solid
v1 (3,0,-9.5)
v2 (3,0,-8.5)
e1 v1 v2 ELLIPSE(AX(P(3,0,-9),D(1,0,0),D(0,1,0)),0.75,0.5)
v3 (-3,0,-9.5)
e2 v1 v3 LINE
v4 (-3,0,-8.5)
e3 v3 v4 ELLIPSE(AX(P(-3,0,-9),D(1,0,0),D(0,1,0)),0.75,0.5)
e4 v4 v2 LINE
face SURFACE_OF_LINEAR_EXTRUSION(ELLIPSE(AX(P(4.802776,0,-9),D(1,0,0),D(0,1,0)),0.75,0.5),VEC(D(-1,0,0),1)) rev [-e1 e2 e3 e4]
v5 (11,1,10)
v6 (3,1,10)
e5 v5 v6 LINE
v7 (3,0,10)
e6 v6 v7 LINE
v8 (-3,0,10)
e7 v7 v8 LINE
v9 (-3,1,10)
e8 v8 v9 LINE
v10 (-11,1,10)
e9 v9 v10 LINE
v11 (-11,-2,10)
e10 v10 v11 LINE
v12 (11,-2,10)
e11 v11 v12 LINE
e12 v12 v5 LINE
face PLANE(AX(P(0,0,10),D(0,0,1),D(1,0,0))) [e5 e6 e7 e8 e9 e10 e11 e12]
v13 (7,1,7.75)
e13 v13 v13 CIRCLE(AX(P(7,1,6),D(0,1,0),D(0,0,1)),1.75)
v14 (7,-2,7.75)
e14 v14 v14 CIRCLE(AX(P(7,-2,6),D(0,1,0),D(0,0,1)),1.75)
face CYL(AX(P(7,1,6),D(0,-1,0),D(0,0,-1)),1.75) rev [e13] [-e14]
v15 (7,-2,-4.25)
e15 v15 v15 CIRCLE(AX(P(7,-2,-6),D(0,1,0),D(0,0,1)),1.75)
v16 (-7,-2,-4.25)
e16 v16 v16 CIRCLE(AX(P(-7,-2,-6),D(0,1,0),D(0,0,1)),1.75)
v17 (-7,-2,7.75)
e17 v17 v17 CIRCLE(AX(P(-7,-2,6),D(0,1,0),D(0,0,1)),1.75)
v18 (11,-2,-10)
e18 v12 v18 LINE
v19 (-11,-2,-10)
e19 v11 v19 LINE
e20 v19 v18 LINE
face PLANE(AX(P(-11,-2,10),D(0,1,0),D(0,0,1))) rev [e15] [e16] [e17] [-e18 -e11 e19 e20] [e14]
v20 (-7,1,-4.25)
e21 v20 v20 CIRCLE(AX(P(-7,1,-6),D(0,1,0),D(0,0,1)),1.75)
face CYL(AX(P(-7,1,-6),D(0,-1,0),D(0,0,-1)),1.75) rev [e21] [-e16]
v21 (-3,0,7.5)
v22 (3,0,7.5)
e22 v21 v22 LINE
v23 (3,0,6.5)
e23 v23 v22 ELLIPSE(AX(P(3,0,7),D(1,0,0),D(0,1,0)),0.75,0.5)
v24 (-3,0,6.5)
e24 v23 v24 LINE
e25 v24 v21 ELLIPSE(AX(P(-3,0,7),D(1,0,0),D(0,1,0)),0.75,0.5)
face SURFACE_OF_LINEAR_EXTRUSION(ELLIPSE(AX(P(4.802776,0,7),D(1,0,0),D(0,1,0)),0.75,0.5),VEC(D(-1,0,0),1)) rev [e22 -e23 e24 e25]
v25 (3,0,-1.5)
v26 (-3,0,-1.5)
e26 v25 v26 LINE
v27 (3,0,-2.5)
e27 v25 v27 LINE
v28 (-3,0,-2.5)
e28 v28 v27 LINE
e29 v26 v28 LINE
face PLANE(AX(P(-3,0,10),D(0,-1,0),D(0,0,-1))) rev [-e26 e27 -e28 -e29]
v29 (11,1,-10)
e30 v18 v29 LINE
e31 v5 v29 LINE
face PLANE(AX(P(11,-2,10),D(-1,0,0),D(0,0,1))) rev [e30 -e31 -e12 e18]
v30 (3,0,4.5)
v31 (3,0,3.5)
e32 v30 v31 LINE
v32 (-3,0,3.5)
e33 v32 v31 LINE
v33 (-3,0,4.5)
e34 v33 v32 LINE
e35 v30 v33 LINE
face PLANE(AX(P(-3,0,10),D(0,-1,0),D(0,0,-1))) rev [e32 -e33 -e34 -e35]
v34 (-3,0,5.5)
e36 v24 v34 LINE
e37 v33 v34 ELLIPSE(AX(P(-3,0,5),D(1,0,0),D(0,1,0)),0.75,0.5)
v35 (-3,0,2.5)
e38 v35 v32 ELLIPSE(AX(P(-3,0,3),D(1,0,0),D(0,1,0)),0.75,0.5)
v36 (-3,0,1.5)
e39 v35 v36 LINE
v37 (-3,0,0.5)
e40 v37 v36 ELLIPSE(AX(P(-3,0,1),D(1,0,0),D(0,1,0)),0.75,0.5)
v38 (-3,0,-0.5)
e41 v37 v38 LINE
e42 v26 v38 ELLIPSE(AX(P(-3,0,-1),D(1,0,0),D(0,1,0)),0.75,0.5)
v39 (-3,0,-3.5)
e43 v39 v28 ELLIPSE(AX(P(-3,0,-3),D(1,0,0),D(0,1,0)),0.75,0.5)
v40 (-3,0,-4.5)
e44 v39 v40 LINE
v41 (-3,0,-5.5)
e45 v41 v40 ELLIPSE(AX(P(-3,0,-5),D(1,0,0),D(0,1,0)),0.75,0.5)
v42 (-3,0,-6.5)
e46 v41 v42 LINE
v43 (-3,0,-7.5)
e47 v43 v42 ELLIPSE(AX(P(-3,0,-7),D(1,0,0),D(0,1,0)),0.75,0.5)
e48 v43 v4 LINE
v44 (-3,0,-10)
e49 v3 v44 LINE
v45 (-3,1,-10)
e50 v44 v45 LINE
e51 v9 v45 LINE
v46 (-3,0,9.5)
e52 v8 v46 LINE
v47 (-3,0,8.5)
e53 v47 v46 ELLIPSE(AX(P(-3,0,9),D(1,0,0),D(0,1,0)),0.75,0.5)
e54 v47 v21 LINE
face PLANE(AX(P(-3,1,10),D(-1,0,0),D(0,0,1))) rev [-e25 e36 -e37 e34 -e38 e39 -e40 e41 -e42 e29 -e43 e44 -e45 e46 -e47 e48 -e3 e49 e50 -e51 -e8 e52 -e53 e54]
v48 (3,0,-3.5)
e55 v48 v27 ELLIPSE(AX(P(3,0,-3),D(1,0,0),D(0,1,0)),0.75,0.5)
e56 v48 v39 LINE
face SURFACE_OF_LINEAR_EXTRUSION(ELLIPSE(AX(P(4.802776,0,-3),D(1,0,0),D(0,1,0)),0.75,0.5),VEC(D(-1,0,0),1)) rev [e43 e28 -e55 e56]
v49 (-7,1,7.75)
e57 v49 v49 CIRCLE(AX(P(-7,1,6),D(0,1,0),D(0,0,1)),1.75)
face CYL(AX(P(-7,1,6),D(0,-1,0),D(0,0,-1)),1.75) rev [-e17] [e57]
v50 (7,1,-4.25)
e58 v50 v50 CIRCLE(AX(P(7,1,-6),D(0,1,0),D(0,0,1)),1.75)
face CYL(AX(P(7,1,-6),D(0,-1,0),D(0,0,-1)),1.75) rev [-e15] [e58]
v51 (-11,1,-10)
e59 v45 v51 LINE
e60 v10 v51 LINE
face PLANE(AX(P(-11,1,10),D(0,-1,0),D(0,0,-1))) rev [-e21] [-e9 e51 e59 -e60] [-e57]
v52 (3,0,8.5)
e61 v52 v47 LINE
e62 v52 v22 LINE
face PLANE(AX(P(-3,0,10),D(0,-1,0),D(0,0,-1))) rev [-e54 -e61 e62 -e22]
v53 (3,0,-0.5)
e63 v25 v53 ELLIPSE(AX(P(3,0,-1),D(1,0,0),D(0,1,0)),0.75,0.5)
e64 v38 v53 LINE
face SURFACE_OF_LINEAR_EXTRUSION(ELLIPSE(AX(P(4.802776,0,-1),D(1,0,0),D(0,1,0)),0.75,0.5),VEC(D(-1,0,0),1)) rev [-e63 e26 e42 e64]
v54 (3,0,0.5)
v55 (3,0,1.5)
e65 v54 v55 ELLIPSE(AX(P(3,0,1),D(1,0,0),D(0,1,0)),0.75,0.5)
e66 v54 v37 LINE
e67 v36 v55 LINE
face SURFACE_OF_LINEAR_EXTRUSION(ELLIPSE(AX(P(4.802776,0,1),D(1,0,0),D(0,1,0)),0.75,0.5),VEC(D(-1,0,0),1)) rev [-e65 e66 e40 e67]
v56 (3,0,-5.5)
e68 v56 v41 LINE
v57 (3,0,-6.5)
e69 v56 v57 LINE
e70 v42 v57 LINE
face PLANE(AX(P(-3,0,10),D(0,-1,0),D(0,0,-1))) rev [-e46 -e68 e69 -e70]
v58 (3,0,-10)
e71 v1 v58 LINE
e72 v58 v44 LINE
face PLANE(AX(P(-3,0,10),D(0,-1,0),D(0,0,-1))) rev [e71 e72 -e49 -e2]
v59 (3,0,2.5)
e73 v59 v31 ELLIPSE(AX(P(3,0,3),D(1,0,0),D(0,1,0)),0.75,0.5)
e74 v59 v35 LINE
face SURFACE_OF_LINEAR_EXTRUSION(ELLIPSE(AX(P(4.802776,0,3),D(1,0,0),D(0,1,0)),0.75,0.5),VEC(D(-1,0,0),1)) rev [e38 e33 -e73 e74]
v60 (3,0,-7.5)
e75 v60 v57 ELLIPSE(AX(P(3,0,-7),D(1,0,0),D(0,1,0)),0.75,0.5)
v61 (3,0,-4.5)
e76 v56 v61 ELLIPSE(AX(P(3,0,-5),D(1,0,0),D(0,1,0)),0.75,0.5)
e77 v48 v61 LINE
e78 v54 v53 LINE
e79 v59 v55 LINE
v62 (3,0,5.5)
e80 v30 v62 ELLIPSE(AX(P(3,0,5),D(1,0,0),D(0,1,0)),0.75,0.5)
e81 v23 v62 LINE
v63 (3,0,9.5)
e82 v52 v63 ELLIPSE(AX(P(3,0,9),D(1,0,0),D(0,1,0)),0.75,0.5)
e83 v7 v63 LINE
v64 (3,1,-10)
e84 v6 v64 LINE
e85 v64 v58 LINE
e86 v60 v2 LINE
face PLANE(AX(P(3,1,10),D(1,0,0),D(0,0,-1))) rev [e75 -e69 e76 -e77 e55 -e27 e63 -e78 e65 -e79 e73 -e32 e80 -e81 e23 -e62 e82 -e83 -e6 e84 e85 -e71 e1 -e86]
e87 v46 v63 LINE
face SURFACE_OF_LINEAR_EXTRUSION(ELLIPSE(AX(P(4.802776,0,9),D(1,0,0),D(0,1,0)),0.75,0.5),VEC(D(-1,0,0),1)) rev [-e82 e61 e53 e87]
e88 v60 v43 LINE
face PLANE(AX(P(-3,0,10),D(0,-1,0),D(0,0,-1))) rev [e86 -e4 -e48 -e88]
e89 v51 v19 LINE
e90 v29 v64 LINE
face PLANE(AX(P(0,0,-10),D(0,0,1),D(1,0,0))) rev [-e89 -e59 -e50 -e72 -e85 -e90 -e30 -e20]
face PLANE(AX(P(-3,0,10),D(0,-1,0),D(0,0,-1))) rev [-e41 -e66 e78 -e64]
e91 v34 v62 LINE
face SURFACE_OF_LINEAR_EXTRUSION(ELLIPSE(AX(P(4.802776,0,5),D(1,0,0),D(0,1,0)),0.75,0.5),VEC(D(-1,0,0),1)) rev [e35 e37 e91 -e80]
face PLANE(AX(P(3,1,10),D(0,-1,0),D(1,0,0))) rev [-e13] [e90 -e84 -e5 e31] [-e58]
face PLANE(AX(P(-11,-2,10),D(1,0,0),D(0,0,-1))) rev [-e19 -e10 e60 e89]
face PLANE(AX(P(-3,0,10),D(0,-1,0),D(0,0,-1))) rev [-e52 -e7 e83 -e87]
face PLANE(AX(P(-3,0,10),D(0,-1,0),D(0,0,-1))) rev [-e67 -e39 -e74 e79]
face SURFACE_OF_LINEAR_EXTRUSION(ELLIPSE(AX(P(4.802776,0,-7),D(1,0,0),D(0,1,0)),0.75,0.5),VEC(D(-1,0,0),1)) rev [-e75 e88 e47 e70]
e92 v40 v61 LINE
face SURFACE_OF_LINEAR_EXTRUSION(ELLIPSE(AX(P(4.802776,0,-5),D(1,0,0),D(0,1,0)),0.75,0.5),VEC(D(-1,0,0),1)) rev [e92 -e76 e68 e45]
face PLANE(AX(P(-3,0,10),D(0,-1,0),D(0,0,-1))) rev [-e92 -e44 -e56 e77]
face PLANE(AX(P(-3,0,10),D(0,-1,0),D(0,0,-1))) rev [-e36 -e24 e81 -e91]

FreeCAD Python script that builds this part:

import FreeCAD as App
import Part
import Sketcher

V = App.Vector
Q = App.Units.Quantity

doc = App.newDocument("Part")
params = doc.addObject("Spreadsheet::Sheet", "Params")
for row, (alias, value) in enumerate([
    ("sketch1_width", "8 mm"),
    ("sketch1_width2", "22 mm"),
    ("sketch1_height", "3 mm"),
    ("sketch1_height2", "1 mm"),
    ("pad1_length", "20 mm"),
    ("pad2_length", "14 mm"),
    ("linearpattern_pitch", "2 mm"),
    ("linearpattern2_pitch", "2 mm"),
    ("sketch3_diameter", "3.5 mm"),
], start=1):
    params.set(f"A{row}", alias)
    params.set(f"B{row}", "=" + value)
    params.setAlias(f"B{row}", alias)

body = doc.addObject("PartDesign::Body", "Body")

# Sketch on XY plane
sketch1 = doc.addObject("Sketcher::SketchObject", "Sketch")
body.addObject(sketch1)
sketch1.AttachmentSupport = (doc.XY_Plane, [""])
sketch1.MapMode = "FlatFace"
sketch1.addGeometry([
    Part.LineSegment(V(-3, 1, 0), V(-11, 1, 0)),  # 0
    Part.LineSegment(V(-11, 1, 0), V(-11, -2, 0)),  # 1
    Part.LineSegment(V(-11, -2, 0), V(11, -2, 0)),  # 2
    Part.LineSegment(V(11, -2, 0), V(11, 1, 0)),  # 3
    Part.LineSegment(V(11, 1, 0), V(3, 1, 0)),  # 4
    Part.LineSegment(V(3, 1, 0), V(3, 0, 0)),  # 5
    Part.LineSegment(V(3, 0, 0), V(-3, 0, 0)),  # 6
    Part.LineSegment(V(-3, 0, 0), V(-3, 1, 0)),  # 7
], False)
sketch1.addConstraint([
    Sketcher.Constraint("Coincident", 0, 2, 1, 1),
    Sketcher.Constraint("Coincident", 1, 2, 2, 1),
    Sketcher.Constraint("Coincident", 2, 2, 3, 1),
    Sketcher.Constraint("Coincident", 3, 2, 4, 1),
    Sketcher.Constraint("Coincident", 4, 2, 5, 1),
    Sketcher.Constraint("Coincident", 5, 2, 6, 1),
    Sketcher.Constraint("Coincident", 6, 2, 7, 1),
    Sketcher.Constraint("Coincident", 7, 2, 0, 1),
    Sketcher.Constraint("Horizontal", 0),
    Sketcher.Constraint("Vertical", 1),
    Sketcher.Constraint("Horizontal", 2),
    Sketcher.Constraint("Vertical", 3),
    Sketcher.Constraint("Horizontal", 4),
    Sketcher.Constraint("Vertical", 5),
    Sketcher.Constraint("Horizontal", 6),
    Sketcher.Constraint("Vertical", 7),
    Sketcher.Constraint("Symmetric", 5, 2, 6, 2, -1, 1),
    Sketcher.Constraint("Symmetric", 0, 2, 3, 2, -2),
    Sketcher.Constraint("DistanceX", 0, 2, 0, 1, Q("8 mm")),
    Sketcher.Constraint("DistanceX", 2, 1, 2, 2, Q("22 mm")),
    Sketcher.Constraint("DistanceY", 1, 2, 1, 1, Q("3 mm")),
    Sketcher.Constraint("DistanceY", 5, 2, 5, 1, Q("1 mm")),
])
sketch1.setExpression("Constraints[18]", "Params.sketch1_width")
sketch1.setExpression("Constraints[19]", "Params.sketch1_width2")
sketch1.setExpression("Constraints[20]", "Params.sketch1_height")
sketch1.setExpression("Constraints[21]", "Params.sketch1_height2")
pad1 = doc.addObject("PartDesign::Pad", "Pad")
body.addObject(pad1)
pad1.Profile = sketch1
pad1.setExpression("Length", "Params.pad1_length")
pad1.Midplane = True

# Sketch on YZ plane
sketch2 = doc.addObject("Sketcher::SketchObject", "Sketch001")
body.addObject(sketch2)
sketch2.AttachmentSupport = (doc.YZ_Plane, [""])
sketch2.MapMode = "FlatFace"
sketch2.AttachmentOffset = App.Placement(V(0, 0, -11), App.Rotation())
sketch2.addGeometry(Part.Ellipse(V(0.75, 1, 0), V(0, 1.5, 0), V(0, 1, 0)), False)
sketch2.addConstraint(Sketcher.Constraint("Block", 0))
pad2 = doc.addObject("PartDesign::Pad", "Pad001")
body.addObject(pad2)
pad2.Profile = sketch2
pad2.setExpression("Length", "Params.pad2_length")
doc.recompute()

linearpattern = doc.addObject("PartDesign::LinearPattern", "LinearPattern")
body.addObject(linearpattern)
linearpattern.Originals = [pad2]
linearpattern.Direction = (doc.Z_Axis, [""])
linearpattern.Mode = "offset"
linearpattern.setExpression("Offset", "Params.linearpattern_pitch")
linearpattern.Occurrences = 5
body.Tip = linearpattern
doc.recompute()

linearpattern2 = doc.addObject("PartDesign::LinearPattern", "LinearPattern001")
body.addObject(linearpattern2)
linearpattern2.Originals = [pad2]
linearpattern2.Direction = (doc.Z_Axis, [""])
linearpattern2.Mode = "offset"
linearpattern2.setExpression("Offset", "Params.linearpattern2_pitch")
linearpattern2.Occurrences = 6
linearpattern2.Reversed = True
body.Tip = linearpattern2

# Sketch on XZ plane
sketch3 = doc.addObject("Sketcher::SketchObject", "Sketch002")
body.addObject(sketch3)
sketch3.AttachmentSupport = (doc.XZ_Plane, [""])
sketch3.MapMode = "FlatFace"
sketch3.addGeometry([
    Part.Circle(V(-7, -6, 0), V(0, 0, 1), 1.8),
    Part.Circle(V(7, -6, 0), V(0, 0, 1), 1.8),
    Part.Circle(V(7, 6, 0), V(0, 0, 1), 1.8),
    Part.Circle(V(-7, 6, 0), V(0, 0, 1), 1.8),
], False)
sketch3.addConstraint([
    Sketcher.Constraint("Equal", 0, 1),
    Sketcher.Constraint("Equal", 1, 2),
    Sketcher.Constraint("Equal", 2, 3),
    Sketcher.Constraint("Symmetric", 0, 3, 2, 3, -1, 1),
    Sketcher.Constraint("Symmetric", 1, 3, 3, 3, -1, 1),
    Sketcher.Constraint("Symmetric", 0, 3, 1, 3, -2),
    Sketcher.Constraint("Diameter", 0, Q("3.5 mm")),
    Sketcher.Constraint("DistanceX", 0, 3, -1, 1, Q("7 mm")),
    Sketcher.Constraint("DistanceY", 0, 3, -1, 1, Q("6 mm")),
])
sketch3.setExpression("Constraints[6]", "Params.sketch3_diameter")
pocket1 = doc.addObject("PartDesign::Pocket", "Pocket")
body.addObject(pocket1)
pocket1.Profile = sketch3
pocket1.Type = "ThroughAll"
pocket1.Midplane = True

doc.recompute()
